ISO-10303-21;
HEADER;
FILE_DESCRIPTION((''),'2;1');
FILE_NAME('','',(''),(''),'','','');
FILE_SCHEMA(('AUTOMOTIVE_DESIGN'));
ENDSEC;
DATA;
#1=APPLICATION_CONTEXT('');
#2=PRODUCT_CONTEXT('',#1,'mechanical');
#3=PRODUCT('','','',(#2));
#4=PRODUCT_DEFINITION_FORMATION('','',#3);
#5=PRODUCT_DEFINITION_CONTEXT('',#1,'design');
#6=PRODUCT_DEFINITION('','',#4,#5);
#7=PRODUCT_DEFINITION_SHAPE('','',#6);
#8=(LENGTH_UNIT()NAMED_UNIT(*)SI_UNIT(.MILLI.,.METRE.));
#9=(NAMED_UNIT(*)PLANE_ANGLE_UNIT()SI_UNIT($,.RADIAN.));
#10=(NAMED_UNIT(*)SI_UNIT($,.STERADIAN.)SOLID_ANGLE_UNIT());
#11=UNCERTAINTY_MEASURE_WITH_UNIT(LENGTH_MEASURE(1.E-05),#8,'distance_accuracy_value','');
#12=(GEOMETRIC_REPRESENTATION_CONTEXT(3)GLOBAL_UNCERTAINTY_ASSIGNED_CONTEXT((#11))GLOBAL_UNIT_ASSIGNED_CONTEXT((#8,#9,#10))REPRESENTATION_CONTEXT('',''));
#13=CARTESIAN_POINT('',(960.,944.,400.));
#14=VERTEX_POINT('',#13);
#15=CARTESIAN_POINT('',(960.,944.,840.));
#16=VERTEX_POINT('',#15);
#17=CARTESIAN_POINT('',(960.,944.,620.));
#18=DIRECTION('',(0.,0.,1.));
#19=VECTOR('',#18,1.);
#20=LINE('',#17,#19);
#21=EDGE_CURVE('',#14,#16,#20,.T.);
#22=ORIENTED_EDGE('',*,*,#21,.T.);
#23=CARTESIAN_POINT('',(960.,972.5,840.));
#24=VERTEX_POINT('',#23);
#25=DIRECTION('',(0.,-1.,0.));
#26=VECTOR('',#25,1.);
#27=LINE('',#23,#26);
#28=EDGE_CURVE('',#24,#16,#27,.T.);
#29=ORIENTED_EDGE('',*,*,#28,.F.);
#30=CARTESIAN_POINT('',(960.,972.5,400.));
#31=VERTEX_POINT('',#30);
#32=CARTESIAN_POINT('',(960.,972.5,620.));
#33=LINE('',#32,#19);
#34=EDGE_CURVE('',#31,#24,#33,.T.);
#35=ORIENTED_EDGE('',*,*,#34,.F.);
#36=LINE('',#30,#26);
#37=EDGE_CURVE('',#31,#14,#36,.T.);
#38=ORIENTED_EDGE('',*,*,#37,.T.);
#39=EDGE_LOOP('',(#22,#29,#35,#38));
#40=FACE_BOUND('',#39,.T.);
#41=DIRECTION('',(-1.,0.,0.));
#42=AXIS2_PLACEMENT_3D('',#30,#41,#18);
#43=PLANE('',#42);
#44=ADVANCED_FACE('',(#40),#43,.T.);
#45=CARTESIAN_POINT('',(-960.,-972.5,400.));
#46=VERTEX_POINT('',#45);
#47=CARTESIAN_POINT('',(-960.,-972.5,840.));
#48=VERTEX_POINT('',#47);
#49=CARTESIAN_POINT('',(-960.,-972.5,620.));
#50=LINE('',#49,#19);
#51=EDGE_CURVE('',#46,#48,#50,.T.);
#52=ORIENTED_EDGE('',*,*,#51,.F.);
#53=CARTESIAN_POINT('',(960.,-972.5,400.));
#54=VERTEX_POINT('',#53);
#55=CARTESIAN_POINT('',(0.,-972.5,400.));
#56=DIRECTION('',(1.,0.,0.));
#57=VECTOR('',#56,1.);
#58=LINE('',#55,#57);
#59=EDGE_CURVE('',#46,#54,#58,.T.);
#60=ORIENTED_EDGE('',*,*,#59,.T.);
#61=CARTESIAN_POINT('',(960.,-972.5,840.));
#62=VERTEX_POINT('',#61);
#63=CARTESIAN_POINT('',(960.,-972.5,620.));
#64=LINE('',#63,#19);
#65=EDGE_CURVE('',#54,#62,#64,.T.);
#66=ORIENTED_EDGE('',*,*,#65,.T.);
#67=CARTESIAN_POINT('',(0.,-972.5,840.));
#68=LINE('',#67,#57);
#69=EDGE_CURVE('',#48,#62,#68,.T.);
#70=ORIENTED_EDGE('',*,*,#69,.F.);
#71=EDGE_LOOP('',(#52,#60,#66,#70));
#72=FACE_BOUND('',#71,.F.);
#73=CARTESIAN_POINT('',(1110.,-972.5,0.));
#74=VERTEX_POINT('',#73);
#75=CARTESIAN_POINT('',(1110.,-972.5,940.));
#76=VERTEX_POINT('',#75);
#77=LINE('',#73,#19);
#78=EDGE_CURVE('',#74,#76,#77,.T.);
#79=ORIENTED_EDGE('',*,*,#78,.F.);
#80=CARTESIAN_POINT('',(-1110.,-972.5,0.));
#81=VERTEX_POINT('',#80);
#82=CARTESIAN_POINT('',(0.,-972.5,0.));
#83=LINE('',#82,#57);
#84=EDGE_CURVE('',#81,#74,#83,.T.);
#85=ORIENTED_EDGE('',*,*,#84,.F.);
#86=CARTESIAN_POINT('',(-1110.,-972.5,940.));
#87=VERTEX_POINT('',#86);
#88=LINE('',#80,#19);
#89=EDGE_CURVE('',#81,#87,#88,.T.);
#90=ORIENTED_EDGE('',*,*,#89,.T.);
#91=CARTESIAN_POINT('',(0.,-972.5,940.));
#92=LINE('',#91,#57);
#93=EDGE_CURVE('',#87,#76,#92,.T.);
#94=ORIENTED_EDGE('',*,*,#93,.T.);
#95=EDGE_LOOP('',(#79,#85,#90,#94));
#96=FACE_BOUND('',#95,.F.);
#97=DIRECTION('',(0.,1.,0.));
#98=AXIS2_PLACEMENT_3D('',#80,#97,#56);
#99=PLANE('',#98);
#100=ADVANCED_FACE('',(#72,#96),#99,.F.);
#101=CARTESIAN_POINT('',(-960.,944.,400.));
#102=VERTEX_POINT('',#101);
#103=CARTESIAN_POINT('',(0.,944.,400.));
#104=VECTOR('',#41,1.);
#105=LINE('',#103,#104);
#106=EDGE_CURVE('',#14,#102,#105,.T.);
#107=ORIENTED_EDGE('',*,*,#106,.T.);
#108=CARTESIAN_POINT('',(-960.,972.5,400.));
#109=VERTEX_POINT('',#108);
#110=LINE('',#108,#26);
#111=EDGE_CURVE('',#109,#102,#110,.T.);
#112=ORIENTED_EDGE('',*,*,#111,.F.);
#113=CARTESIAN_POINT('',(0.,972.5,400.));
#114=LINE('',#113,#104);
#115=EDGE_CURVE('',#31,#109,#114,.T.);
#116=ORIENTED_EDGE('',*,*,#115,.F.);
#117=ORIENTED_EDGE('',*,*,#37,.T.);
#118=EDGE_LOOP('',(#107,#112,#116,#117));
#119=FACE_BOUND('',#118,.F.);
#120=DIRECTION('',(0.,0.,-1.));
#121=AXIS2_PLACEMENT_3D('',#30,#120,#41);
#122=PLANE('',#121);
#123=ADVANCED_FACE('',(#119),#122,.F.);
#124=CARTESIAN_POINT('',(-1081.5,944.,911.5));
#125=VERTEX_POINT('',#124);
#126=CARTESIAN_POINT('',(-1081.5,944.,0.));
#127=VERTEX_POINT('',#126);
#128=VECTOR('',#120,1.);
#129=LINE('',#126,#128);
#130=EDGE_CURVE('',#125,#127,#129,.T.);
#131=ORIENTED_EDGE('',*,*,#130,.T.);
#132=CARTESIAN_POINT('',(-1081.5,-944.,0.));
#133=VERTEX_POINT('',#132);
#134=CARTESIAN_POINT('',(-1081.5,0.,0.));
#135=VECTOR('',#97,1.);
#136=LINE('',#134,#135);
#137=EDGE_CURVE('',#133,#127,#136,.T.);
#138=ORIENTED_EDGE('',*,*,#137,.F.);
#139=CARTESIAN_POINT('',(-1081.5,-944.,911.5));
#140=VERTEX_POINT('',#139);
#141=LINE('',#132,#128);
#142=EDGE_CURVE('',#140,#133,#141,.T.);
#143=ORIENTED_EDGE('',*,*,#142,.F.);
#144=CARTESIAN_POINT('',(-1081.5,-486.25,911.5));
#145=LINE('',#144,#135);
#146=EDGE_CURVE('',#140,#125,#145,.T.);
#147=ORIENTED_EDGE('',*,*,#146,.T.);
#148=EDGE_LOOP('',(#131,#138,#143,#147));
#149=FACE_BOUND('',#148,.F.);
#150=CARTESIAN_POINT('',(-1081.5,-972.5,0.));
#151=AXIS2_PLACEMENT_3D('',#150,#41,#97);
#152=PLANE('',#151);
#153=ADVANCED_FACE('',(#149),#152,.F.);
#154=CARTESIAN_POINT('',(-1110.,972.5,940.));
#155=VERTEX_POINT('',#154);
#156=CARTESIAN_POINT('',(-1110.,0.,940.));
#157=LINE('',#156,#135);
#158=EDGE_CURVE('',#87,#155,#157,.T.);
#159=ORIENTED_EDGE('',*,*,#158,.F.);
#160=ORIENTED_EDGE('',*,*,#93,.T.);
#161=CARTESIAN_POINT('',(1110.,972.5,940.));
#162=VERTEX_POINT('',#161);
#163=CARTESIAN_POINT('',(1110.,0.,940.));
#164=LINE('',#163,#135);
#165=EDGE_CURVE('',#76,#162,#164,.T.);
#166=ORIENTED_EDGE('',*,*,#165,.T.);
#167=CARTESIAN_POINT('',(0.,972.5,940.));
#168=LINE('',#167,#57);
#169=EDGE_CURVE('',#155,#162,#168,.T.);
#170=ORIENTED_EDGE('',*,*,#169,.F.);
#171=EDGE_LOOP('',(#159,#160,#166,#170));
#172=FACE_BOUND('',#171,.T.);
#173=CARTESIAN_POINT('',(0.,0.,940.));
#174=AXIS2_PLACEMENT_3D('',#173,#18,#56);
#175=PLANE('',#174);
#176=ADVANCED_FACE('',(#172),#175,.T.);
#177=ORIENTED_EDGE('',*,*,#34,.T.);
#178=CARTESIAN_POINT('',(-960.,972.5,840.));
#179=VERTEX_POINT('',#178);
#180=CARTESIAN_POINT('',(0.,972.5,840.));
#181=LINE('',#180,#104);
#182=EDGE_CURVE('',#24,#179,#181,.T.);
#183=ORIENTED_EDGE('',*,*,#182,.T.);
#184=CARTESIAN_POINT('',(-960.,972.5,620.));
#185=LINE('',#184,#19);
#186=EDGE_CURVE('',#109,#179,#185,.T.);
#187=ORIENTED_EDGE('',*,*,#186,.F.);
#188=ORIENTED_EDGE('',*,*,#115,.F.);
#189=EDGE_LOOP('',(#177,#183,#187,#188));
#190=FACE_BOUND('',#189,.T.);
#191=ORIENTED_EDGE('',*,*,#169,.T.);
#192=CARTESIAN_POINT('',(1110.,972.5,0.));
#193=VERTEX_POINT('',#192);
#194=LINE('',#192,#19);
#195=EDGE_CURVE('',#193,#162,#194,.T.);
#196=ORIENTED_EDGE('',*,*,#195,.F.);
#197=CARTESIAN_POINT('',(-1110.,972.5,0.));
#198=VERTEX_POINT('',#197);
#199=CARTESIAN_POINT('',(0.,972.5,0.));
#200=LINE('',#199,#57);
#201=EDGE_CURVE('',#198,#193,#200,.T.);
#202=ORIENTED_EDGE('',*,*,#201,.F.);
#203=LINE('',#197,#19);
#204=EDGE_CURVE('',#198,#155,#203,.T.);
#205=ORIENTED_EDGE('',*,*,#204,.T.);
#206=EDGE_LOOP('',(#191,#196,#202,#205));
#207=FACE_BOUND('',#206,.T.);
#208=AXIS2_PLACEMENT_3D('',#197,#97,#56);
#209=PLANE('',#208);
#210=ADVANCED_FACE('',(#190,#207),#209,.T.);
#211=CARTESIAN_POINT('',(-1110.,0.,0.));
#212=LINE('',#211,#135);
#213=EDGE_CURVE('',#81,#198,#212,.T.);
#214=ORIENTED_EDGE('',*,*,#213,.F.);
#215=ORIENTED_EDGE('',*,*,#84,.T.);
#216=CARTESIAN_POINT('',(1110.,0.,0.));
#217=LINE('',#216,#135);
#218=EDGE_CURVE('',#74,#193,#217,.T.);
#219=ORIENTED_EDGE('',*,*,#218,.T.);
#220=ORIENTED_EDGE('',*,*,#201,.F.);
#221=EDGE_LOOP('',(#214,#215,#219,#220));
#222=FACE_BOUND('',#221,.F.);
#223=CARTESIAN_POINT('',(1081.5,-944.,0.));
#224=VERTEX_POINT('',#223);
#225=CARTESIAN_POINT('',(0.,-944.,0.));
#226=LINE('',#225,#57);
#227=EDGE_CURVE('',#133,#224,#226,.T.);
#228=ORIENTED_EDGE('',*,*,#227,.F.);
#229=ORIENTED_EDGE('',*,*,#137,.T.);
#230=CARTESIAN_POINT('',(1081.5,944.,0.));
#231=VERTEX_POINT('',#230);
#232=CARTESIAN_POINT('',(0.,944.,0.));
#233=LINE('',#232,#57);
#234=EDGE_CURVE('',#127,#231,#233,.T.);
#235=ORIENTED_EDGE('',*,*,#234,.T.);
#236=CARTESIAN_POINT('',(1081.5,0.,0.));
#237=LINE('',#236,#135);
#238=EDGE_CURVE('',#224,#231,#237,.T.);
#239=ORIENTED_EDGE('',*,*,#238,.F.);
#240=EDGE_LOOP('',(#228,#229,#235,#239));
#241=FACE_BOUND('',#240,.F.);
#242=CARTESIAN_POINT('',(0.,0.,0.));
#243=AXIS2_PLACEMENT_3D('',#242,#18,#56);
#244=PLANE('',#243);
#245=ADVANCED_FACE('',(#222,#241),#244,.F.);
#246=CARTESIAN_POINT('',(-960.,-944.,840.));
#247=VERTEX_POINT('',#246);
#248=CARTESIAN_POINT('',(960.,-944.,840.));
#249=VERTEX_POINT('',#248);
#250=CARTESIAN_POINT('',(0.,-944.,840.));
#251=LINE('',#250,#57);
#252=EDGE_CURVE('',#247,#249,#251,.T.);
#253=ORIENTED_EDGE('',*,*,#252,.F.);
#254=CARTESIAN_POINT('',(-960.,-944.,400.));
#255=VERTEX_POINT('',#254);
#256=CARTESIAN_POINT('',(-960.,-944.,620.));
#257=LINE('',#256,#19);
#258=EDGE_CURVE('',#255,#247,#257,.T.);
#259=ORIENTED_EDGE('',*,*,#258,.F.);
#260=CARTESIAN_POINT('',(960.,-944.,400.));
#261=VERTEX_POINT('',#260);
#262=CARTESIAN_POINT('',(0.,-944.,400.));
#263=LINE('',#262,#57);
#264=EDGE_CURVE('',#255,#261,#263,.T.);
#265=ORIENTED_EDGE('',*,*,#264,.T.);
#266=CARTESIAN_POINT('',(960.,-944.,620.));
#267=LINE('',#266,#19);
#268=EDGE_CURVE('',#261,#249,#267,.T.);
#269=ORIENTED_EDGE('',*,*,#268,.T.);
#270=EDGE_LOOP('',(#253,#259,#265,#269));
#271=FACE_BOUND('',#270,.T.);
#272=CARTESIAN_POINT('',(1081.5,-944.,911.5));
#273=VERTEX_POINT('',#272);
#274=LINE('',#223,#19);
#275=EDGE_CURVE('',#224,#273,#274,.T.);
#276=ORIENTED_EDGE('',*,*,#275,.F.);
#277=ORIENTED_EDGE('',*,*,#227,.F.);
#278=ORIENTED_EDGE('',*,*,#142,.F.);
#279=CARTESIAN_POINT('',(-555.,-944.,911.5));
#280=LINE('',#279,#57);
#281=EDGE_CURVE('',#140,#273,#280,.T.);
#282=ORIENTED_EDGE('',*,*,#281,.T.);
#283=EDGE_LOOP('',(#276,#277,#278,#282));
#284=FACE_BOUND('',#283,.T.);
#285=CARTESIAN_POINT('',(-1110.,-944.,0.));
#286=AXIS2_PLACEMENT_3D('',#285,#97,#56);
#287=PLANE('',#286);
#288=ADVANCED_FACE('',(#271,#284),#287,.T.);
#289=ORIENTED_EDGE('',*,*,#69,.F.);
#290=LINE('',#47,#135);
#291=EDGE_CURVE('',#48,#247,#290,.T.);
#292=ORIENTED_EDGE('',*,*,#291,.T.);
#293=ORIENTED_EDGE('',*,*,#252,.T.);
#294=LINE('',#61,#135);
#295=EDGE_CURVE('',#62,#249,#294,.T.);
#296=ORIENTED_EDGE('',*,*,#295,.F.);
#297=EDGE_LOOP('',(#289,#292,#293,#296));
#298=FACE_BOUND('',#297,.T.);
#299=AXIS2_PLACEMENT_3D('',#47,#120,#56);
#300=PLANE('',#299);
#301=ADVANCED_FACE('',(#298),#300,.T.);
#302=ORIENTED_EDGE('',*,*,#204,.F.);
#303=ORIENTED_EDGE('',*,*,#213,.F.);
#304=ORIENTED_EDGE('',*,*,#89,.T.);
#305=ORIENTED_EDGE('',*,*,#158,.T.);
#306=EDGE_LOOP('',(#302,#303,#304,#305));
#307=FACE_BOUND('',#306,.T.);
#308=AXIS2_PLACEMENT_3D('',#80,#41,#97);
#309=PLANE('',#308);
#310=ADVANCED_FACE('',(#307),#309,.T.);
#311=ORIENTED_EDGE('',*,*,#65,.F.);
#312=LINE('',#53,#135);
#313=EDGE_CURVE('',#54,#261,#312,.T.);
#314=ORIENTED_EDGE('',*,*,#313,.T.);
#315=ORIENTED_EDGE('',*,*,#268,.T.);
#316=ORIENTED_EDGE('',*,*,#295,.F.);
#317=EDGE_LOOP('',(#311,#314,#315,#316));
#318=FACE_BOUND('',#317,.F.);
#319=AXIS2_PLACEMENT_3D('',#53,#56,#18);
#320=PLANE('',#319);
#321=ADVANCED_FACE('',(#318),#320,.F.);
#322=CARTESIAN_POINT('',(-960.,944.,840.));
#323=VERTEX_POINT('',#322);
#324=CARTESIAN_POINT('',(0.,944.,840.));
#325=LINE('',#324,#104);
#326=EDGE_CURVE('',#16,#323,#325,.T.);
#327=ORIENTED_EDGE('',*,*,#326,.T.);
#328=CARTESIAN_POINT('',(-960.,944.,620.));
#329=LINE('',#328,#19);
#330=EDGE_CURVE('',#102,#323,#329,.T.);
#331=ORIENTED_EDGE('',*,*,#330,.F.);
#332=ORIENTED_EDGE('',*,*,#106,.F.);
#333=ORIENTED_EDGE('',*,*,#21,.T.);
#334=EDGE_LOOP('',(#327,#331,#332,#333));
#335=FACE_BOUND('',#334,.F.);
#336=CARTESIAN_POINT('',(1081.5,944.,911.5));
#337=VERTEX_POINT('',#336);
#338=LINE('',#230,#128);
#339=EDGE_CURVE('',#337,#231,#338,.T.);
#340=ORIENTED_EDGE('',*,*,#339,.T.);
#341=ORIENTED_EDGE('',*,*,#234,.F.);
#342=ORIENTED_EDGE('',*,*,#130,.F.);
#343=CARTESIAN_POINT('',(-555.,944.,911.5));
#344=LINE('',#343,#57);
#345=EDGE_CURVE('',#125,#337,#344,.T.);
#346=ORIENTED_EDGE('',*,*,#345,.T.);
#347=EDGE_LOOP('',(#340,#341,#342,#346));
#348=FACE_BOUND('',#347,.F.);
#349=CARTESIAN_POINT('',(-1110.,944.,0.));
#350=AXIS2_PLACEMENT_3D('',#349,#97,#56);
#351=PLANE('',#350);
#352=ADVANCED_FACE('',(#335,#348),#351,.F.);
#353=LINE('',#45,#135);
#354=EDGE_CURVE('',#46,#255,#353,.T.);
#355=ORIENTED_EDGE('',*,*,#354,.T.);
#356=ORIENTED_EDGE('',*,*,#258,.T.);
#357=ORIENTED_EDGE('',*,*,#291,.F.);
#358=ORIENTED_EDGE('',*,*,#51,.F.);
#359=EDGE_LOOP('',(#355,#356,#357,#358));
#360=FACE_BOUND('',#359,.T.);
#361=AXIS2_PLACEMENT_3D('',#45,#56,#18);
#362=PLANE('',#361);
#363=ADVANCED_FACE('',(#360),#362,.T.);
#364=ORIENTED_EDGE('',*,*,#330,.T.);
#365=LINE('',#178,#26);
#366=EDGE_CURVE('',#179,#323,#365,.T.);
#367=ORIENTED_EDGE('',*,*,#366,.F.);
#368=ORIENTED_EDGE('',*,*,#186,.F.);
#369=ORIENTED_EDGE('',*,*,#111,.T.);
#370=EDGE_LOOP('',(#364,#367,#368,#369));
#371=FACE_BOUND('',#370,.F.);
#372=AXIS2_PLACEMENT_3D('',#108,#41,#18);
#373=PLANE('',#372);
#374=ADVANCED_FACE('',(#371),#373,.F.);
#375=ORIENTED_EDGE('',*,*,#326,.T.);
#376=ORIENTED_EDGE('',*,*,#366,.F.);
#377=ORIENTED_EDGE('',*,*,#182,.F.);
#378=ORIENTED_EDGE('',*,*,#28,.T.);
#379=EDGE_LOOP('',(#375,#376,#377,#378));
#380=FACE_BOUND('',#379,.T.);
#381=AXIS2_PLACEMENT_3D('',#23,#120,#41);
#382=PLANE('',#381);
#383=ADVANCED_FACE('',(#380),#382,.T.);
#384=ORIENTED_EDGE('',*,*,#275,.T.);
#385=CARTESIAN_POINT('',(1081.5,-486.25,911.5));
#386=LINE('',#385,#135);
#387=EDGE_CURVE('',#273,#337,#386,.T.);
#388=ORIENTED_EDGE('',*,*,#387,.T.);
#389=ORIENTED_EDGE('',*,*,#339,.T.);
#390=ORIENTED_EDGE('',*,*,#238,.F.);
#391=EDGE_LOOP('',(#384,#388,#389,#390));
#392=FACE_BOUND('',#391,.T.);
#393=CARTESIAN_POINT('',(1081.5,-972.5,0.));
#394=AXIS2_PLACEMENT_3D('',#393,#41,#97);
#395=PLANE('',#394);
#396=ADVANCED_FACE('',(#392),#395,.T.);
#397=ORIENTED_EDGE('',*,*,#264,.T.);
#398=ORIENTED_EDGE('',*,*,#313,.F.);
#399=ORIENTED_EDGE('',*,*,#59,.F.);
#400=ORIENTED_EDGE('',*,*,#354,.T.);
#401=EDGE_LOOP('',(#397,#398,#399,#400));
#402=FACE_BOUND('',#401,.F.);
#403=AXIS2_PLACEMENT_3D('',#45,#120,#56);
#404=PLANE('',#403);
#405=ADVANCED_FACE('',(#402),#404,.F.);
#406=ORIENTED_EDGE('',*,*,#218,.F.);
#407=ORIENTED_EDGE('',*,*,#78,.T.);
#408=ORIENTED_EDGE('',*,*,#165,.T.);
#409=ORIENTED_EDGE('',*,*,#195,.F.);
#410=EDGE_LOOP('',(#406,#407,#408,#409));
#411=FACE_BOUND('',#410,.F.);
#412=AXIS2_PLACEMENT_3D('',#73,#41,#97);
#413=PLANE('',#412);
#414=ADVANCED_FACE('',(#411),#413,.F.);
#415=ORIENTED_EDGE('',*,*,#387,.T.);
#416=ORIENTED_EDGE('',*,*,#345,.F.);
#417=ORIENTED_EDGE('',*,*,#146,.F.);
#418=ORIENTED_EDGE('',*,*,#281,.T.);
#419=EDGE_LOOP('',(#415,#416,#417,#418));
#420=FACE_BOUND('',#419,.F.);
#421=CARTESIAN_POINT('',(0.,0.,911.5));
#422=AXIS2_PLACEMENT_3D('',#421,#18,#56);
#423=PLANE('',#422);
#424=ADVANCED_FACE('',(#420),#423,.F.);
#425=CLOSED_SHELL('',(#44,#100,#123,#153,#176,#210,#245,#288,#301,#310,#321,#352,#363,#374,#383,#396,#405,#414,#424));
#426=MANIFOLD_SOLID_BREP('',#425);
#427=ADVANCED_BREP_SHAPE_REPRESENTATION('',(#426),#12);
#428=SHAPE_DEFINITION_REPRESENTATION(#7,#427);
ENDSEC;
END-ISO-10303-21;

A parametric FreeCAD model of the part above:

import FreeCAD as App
import Part
import Sketcher


def faces_at(feature, points):
    """Names of the faces that lie closest to the given points."""
    faces = feature.Shape.Faces
    near = lambda p: min(range(len(faces)), key=lambda i: faces[i].distToShape(Part.Vertex(*p))[0])
    return sorted({f"Face{near(p) + 1}" for p in points})

doc = App.newDocument("Part")
body = doc.addObject("PartDesign::Body", "Body")

# Sketch on XY plane
sketch1 = body.newObject("Sketcher::SketchObject", "Sketch")
sketch1.AttachmentSupport = (doc.getObject("XY_Plane"), [""])
sketch1.MapMode = "FlatFace"
sketch1.addGeometry([
    Part.LineSegment(App.Vector(-1110, 972, 0), App.Vector(-1110, -972, 0)),
    Part.LineSegment(App.Vector(-1110, -972, 0), App.Vector(1110, -972, 0)),
    Part.LineSegment(App.Vector(1110, -972, 0), App.Vector(1110, 972, 0)),
    Part.LineSegment(App.Vector(1110, 972, 0), App.Vector(-1110, 972, 0)),
], False)
sketch1.addConstraint([
    Sketcher.Constraint("Coincident", 0, 2, 1, 1),
    Sketcher.Constraint("Coincident", 1, 2, 2, 1),
    Sketcher.Constraint("Coincident", 2, 2, 3, 1),
    Sketcher.Constraint("Coincident", 3, 2, 0, 1),
    Sketcher.Constraint("Vertical", 0),
    Sketcher.Constraint("Horizontal", 1),
    Sketcher.Constraint("Vertical", 2),
    Sketcher.Constraint("Horizontal", 3),
    Sketcher.Constraint("Symmetric", 0, 2, 2, 2, -1, 1),
    Sketcher.Constraint("DistanceX", 1, 1, 1, 2, 2220.0),
    Sketcher.Constraint("DistanceY", 0, 2, 0, 1, 1945.0),
])
pad1 = body.newObject("PartDesign::Pad", "Pad")
pad1.Profile = sketch1
pad1.Length = 940
doc.recompute()

thickness = body.newObject("PartDesign::Thickness", "Thickness")
thickness.Base = (pad1, faces_at(pad1, [(0, 0, 0)]))
thickness.Value = 28.5
thickness.Reversed = True
thickness.Join = "Arc"

# Sketch on XZ plane
sketch2 = body.newObject("Sketcher::SketchObject", "Sketch001")
sketch2.AttachmentSupport = (doc.getObject("XZ_Plane"), [""])
sketch2.MapMode = "FlatFace"
sketch2.AttachmentOffset = App.Placement(App.Vector(0, 0, 972.5), App.Rotation())
sketch2.addGeometry([
    Part.LineSegment(App.Vector(-960, 840, 0), App.Vector(-960, 400, 0)),
    Part.LineSegment(App.Vector(-960, 400, 0), App.Vector(960, 400, 0)),
    Part.LineSegment(App.Vector(960, 400, 0), App.Vector(960, 840, 0)),
    Part.LineSegment(App.Vector(960, 840, 0), App.Vector(-960, 840, 0)),
], False)
sketch2.addConstraint([
    Sketcher.Constraint("Coincident", 0, 2, 1, 1),
    Sketcher.Constraint("Coincident", 1, 2, 2, 1),
    Sketcher.Constraint("Coincident", 2, 2, 3, 1),
    Sketcher.Constraint("Coincident", 3, 2, 0, 1),
    Sketcher.Constraint("Vertical", 0),
    Sketcher.Constraint("Horizontal", 1),
    Sketcher.Constraint("Vertical", 2),
    Sketcher.Constraint("Horizontal", 3),
    Sketcher.Constraint("DistanceX", 1, 1, 1, 2, 1920.0),
    Sketcher.Constraint("DistanceY", 0, 2, 0, 1, 440.0),
    Sketcher.Constraint("DistanceX", 0, 2, -1, 1, 960.0),
    Sketcher.Constraint("DistanceY", -1, 1, 0, 2, 400.0),
])
pocket1 = body.newObject("PartDesign::Pocket", "Pocket")
pocket1.Profile = sketch2
pocket1.Length = 28.5

# Sketch on XZ plane
sketch3 = body.newObject("Sketcher::SketchObject", "Sketch002")
sketch3.AttachmentSupport = (doc.getObject("XZ_Plane"), [""])
sketch3.MapMode = "FlatFace"
sketch3.AttachmentOffset = App.Placement(App.Vector(0, 0, -972.5), App.Rotation())
sketch3.addGeometry([
    Part.LineSegment(App.Vector(960, 840, 0), App.Vector(960, 400, 0)),
    Part.LineSegment(App.Vector(960, 400, 0), App.Vector(-960, 400, 0)),
    Part.LineSegment(App.Vector(-960, 400, 0), App.Vector(-960, 840, 0)),
    Part.LineSegment(App.Vector(-960, 840, 0), App.Vector(960, 840, 0)),
], False)
sketch3.addConstraint([
    Sketcher.Constraint("Coincident", 0, 2, 1, 1),
    Sketcher.Constraint("Coincident", 1, 2, 2, 1),
    Sketcher.Constraint("Coincident", 2, 2, 3, 1),
    Sketcher.Constraint("Coincident", 3, 2, 0, 1),
    Sketcher.Constraint("Vertical", 0),
    Sketcher.Constraint("Horizontal", 1),
    Sketcher.Constraint("Vertical", 2),
    Sketcher.Constraint("Horizontal", 3),
    Sketcher.Constraint("DistanceX", 1, 2, 1, 1, 1920.0),
    Sketcher.Constraint("DistanceY", 0, 2, 0, 1, 440.0),
    Sketcher.Constraint("DistanceX", -1, 1, 0, 2, 960.0),
    Sketcher.Constraint("DistanceY", -1, 1, 0, 2, 400.0),
])
pocket2 = body.newObject("PartDesign::Pocket", "Pocket001")
pocket2.Profile = sketch3
pocket2.Type = "ThroughAll"
pocket2.Reversed = True

doc.recompute()
